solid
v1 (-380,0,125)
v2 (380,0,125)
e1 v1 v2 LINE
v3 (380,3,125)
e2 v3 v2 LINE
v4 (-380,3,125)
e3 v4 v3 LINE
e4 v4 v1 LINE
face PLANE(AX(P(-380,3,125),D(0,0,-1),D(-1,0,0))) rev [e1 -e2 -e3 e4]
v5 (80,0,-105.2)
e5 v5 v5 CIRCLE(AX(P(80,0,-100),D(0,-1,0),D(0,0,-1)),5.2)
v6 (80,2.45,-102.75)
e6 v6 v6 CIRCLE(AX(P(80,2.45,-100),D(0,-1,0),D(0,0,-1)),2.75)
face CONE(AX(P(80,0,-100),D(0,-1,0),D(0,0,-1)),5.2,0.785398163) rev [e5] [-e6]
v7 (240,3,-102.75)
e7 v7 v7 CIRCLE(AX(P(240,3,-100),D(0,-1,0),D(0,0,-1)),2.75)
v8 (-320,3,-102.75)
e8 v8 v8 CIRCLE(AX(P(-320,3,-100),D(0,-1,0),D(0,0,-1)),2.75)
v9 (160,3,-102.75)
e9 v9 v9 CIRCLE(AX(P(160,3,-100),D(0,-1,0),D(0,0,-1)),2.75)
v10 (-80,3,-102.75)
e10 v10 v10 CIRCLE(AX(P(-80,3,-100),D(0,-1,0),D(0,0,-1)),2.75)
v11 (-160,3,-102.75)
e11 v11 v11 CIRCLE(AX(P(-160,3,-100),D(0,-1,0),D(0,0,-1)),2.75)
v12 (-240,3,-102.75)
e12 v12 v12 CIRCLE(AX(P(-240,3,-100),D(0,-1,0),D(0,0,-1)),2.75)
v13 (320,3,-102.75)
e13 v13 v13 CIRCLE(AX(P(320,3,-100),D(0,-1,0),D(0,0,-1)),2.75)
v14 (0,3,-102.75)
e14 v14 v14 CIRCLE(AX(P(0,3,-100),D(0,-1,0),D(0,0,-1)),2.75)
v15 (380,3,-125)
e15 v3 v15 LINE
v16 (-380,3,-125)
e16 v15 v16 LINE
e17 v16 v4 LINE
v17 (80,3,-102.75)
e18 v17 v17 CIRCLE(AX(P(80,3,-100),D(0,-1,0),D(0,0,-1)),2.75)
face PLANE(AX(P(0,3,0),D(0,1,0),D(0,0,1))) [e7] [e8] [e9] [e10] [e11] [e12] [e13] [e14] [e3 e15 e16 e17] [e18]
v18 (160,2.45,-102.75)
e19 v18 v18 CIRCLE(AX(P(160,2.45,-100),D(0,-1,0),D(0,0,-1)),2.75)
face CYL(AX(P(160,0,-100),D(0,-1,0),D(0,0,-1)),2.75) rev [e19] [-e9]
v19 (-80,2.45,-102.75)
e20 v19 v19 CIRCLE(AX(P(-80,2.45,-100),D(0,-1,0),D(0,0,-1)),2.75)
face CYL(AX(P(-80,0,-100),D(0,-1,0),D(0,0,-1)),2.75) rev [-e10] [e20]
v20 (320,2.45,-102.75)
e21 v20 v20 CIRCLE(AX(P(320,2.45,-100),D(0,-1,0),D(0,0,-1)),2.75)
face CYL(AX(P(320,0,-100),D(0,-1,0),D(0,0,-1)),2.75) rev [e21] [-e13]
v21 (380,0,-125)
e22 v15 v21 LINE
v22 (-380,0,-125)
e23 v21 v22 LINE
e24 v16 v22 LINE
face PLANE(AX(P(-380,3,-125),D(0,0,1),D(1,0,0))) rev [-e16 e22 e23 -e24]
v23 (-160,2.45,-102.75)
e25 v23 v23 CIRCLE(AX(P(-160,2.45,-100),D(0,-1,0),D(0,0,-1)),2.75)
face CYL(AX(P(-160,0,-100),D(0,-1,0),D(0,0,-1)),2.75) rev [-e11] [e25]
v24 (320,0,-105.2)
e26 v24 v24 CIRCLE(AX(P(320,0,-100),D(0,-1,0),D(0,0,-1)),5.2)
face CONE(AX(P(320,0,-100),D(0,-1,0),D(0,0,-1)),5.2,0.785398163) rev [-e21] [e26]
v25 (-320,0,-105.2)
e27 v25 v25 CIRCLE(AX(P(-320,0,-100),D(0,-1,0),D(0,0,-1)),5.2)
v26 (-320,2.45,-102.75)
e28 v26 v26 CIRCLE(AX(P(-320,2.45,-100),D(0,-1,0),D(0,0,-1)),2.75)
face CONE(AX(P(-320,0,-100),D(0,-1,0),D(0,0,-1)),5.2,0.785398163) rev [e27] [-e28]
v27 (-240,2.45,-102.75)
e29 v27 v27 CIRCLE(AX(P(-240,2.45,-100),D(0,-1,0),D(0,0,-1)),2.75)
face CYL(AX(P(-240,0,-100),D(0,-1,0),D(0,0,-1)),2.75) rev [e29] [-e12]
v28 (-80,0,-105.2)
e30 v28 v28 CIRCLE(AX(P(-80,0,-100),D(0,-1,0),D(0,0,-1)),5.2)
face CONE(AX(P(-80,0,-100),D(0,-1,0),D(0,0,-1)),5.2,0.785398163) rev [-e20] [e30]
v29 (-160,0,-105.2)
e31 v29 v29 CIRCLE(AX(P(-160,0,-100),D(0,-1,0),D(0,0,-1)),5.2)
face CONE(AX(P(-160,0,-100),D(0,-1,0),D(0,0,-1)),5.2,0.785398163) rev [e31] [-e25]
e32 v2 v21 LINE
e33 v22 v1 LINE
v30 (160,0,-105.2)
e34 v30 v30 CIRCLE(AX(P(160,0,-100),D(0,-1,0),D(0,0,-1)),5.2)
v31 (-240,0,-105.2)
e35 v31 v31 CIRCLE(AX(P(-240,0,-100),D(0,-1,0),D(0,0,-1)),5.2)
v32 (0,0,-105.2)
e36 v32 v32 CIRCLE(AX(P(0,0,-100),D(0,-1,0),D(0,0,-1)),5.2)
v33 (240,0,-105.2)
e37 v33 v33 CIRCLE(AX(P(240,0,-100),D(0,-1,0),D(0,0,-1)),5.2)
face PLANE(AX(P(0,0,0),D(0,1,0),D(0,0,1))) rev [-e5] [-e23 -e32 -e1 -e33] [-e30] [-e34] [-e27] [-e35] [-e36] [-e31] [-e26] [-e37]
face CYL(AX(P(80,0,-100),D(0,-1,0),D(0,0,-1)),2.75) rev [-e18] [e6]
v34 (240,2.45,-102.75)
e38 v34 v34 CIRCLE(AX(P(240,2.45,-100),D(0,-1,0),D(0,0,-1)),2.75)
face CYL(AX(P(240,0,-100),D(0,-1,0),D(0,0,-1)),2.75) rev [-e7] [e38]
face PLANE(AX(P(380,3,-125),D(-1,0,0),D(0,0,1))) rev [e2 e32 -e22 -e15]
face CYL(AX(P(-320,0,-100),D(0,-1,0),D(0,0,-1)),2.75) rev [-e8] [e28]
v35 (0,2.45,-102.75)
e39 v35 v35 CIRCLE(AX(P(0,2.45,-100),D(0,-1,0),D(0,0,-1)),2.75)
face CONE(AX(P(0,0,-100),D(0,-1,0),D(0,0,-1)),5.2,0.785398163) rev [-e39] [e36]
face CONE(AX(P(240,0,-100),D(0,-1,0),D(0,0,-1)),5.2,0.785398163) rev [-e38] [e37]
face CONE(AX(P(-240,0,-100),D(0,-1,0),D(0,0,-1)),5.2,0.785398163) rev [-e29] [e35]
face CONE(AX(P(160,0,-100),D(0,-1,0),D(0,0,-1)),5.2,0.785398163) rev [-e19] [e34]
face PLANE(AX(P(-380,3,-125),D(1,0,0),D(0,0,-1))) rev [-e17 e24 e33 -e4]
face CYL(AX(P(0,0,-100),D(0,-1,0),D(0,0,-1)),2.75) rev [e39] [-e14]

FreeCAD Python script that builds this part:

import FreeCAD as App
import Part
import Sketcher

V = App.Vector
Q = App.Units.Quantity

doc = App.newDocument("Part")
body = doc.addObject("PartDesign::Body", "Body")

# Sketch on XZ plane
sketch1 = body.newObject("Sketcher::SketchObject", "Sketch")
sketch1.AttachmentSupport = (doc.getObject("XZ_Plane"), [""])
sketch1.MapMode = "FlatFace"
sketch1.addGeometry(Part.LineSegment(V(-380, -125, 0), V(-380, 125, 0)), False)
sketch1.addGeometry(Part.LineSegment(V(-380, 125, 0), V(380, 125, 0)), False)
sketch1.addGeometry(Part.LineSegment(V(380, 125, 0), V(380, -125, 0)), False)
sketch1.addGeometry(Part.LineSegment(V(380, -125, 0), V(-380, -125, 0)), False)
sketch1.addConstraint(Sketcher.Constraint("Coincident", 0, 2, 1, 1))
sketch1.addConstraint(Sketcher.Constraint("Coincident", 1, 2, 2, 1))
sketch1.addConstraint(Sketcher.Constraint("Coincident", 2, 2, 3, 1))
sketch1.addConstraint(Sketcher.Constraint("Coincident", 3, 2, 0, 1))
sketch1.addConstraint(Sketcher.Constraint("Vertical", 0))
sketch1.addConstraint(Sketcher.Constraint("Horizontal", 1))
sketch1.addConstraint(Sketcher.Constraint("Vertical", 2))
sketch1.addConstraint(Sketcher.Constraint("Horizontal", 3))
sketch1.addConstraint(Sketcher.Constraint("Symmetric", 0, 2, 2, 2, -1, 1))
sketch1.addConstraint(Sketcher.Constraint("DistanceX", 1, 1, 1, 2, Q("760 mm")))
sketch1.addConstraint(Sketcher.Constraint("DistanceY", 0, 1, 0, 2, Q("250 mm")))
pad1 = body.newObject("PartDesign::Pad", "Pad")
pad1.Profile = sketch1
pad1.Length = 3
pad1.Reversed = True

# Sketch on YZ plane
sketch2 = body.newObject("Sketcher::SketchObject", "Sketch001")
sketch2.AttachmentSupport = (doc.getObject("YZ_Plane"), [""])
sketch2.MapMode = "FlatFace"
sketch2.addGeometry(Part.LineSegment(V(3, -100, 0), V(0, -100, 0)), False)
sketch2.addGeometry(Part.LineSegment(V(0, -100, 0), V(0, -105.2, 0)), False)
sketch2.addGeometry(Part.LineSegment(V(0, -105.2, 0), V(2.5, -102.8, 0)), False)
sketch2.addGeometry(Part.LineSegment(V(2.5, -102.8, 0), V(3, -102.8, 0)), False)
sketch2.addGeometry(Part.LineSegment(V(3, -102.8, 0), V(3, -100, 0)), False)
sketch2.addGeometry(Part.LineSegment(V(0, -100, 0), V(3, -100, 0)), True)  # axis
sketch2.addConstraint(Sketcher.Constraint("Coincident", 0, 2, 1, 1))
sketch2.addConstraint(Sketcher.Constraint("Coincident", 1, 2, 2, 1))
sketch2.addConstraint(Sketcher.Constraint("Coincident", 2, 2, 3, 1))
sketch2.addConstraint(Sketcher.Constraint("Coincident", 3, 2, 4, 1))
sketch2.addConstraint(Sketcher.Constraint("Coincident", 4, 2, 0, 1))
sketch2.addConstraint(Sketcher.Constraint("Horizontal", 0))
sketch2.addConstraint(Sketcher.Constraint("Vertical", 1))
sketch2.addConstraint(Sketcher.Constraint("Horizontal", 3))
sketch2.addConstraint(Sketcher.Constraint("Vertical", 4))
sketch2.addConstraint(Sketcher.Constraint("Horizontal", 5))
sketch2.addConstraint(Sketcher.Constraint("Coincident", 5, 1, 0, 2))
sketch2.addConstraint(Sketcher.Constraint("PointOnObject", 0, 2, -2))
sketch2.addConstraint(Sketcher.Constraint("Vertical", 3, 2, 5, 2))
sketch2.addConstraint(Sketcher.Constraint("DistanceX", 0, 2, 0, 1, Q("3 mm")))
sketch2.addConstraint(Sketcher.Constraint("Angle", 2, Q("45 deg")))
sketch2.addConstraint(Sketcher.Constraint("DistanceY", 1, 2, 1, 1, Q("5.2 mm")))
sketch2.addConstraint(Sketcher.Constraint("DistanceY", 0, 2, -1, 1, Q("100 mm")))
sketch2.addConstraint(Sketcher.Constraint("DistanceX", 3, 1, 3, 2, Q("0.55 mm")))
groove = body.newObject("PartDesign::Groove", "Groove")
groove.Profile = sketch2
groove.ReferenceAxis = (sketch2, ["Axis0"])
groove.Angle = 360
doc.recompute()

linearpattern = body.newObject("PartDesign::LinearPattern", "LinearPattern")
linearpattern.Originals = [groove]
linearpattern.Direction = (doc.getObject("X_Axis"), [""])
linearpattern.Mode = "offset"
linearpattern.Offset = 80
linearpattern.Occurrences = 2
linearpattern.Reversed = True
body.Tip = linearpattern
doc.recompute()

linearpattern2 = body.newObject("PartDesign::LinearPattern", "LinearPattern001")
linearpattern2.Originals = [groove]
linearpattern2.Direction = (doc.getObject("X_Axis"), [""])
linearpattern2.Mode = "offset"
linearpattern2.Offset = 160
linearpattern2.Occurrences = 2
linearpattern2.Reversed = True
body.Tip = linearpattern2
doc.recompute()

linearpattern3 = body.newObject("PartDesign::LinearPattern", "LinearPattern002")
linearpattern3.Originals = [groove]
linearpattern3.Direction = (doc.getObject("X_Axis"), [""])
linearpattern3.Mode = "offset"
linearpattern3.Offset = 240
linearpattern3.Occurrences = 2
linearpattern3.Reversed = True
body.Tip = linearpattern3
doc.recompute()

linearpattern4 = body.newObject("PartDesign::LinearPattern", "LinearPattern003")
linearpattern4.Originals = [groove]
linearpattern4.Direction = (doc.getObject("X_Axis"), [""])
linearpattern4.Mode = "offset"
linearpattern4.Offset = 320
linearpattern4.Occurrences = 2
linearpattern4.Reversed = True
body.Tip = linearpattern4
doc.recompute()

linearpattern5 = body.newObject("PartDesign::LinearPattern", "LinearPattern004")
linearpattern5.Originals = [groove]
linearpattern5.Direction = (doc.getObject("X_Axis"), [""])
linearpattern5.Mode = "offset"
linearpattern5.Offset = 80
linearpattern5.Occurrences = 2
body.Tip = linearpattern5
doc.recompute()

linearpattern6 = body.newObject("PartDesign::LinearPattern", "LinearPattern005")
linearpattern6.Originals = [groove]
linearpattern6.Direction = (doc.getObject("X_Axis"), [""])
linearpattern6.Mode = "offset"
linearpattern6.Offset = 160
linearpattern6.Occurrences = 2
body.Tip = linearpattern6
doc.recompute()

linearpattern7 = body.newObject("PartDesign::LinearPattern", "LinearPattern006")
linearpattern7.Originals = [groove]
linearpattern7.Direction = (doc.getObject("X_Axis"), [""])
linearpattern7.Mode = "offset"
linearpattern7.Offset = 240
linearpattern7.Occurrences = 2
body.Tip = linearpattern7
doc.recompute()

linearpattern8 = body.newObject("PartDesign::LinearPattern", "LinearPattern007")
linearpattern8.Originals = [groove]
linearpattern8.Direction = (doc.getObject("X_Axis"), [""])
linearpattern8.Mode = "offset"
linearpattern8.Offset = 320
linearpattern8.Occurrences = 2
body.Tip = linearpattern8

doc.recompute()
